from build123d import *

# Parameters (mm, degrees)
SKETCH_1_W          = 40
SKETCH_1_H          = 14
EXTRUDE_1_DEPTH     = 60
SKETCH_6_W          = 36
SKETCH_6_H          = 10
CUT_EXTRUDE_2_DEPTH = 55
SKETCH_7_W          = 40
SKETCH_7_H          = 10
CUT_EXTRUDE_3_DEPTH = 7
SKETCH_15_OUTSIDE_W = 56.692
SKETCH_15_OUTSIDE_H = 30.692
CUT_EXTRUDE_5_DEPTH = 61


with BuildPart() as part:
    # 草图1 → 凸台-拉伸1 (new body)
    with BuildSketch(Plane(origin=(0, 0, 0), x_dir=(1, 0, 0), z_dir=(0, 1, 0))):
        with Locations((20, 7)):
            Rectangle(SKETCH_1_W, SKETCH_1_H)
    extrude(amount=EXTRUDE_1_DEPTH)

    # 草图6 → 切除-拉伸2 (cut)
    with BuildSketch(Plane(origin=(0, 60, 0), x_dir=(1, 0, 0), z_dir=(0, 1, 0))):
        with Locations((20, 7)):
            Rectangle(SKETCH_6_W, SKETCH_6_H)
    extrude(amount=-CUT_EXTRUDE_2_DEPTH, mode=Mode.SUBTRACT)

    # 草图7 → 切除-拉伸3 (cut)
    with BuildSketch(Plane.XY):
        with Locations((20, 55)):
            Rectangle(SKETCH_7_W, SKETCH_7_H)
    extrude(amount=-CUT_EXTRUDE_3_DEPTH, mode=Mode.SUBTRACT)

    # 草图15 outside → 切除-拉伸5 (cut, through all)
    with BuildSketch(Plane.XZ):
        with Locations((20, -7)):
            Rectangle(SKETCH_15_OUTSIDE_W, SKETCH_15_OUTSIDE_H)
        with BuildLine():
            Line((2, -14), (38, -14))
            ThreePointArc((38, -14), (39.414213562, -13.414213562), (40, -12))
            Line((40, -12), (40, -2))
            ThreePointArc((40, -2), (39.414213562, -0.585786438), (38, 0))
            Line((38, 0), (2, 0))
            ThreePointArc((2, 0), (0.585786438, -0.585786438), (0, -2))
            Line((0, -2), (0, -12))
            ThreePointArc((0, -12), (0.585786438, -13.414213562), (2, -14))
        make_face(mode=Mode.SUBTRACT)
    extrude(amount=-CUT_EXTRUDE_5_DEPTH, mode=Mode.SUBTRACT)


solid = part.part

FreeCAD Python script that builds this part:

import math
import FreeCAD as App
import Part
import Sketcher

V = App.Vector

doc = App.newDocument("Part")
body = doc.addObject("PartDesign::Body", "Body")

# Sketch on XZ plane
sketch1 = doc.addObject("Sketcher::SketchObject", "Sketch")
body.addObject(sketch1)
sketch1.AttachmentSupport = (doc.XZ_Plane, [""])
sketch1.MapMode = "FlatFace"
sketch1.addGeometry(Part.LineSegment(V(0, -14, 0), V(0, 0, 0)), False)
sketch1.addGeometry(Part.LineSegment(V(0, 0, 0), V(40, 0, 0)), False)
sketch1.addGeometry(Part.LineSegment(V(40, 0, 0), V(40, -14, 0)), False)
sketch1.addGeometry(Part.LineSegment(V(40, -14, 0), V(0, -14, 0)), False)
sketch1.addConstraint(Sketcher.Constraint("Coincident", 0, 2, 1, 1))
sketch1.addConstraint(Sketcher.Constraint("Coincident", 1, 2, 2, 1))
sketch1.addConstraint(Sketcher.Constraint("Coincident", 2, 2, 3, 1))
sketch1.addConstraint(Sketcher.Constraint("Coincident", 3, 2, 0, 1))
sketch1.addConstraint(Sketcher.Constraint("Vertical", 0))
sketch1.addConstraint(Sketcher.Constraint("Horizontal", 1))
sketch1.addConstraint(Sketcher.Constraint("Vertical", 2))
sketch1.addConstraint(Sketcher.Constraint("Horizontal", 3))
sketch1.addConstraint(Sketcher.Constraint("Coincident", 0, 2, -1, 1))
sketch1.addConstraint(Sketcher.Constraint("DistanceX", 1, 1, 1, 2, 40.0))
sketch1.addConstraint(Sketcher.Constraint("DistanceY", 0, 1, 0, 2, 14.0))
pad1 = doc.addObject("PartDesign::Pad", "Pad")
body.addObject(pad1)
pad1.Profile = sketch1
pad1.Length = 60
pad1.Reversed = True

# Sketch on XZ plane
sketch2 = doc.addObject("Sketcher::SketchObject", "Sketch001")
body.addObject(sketch2)
sketch2.AttachmentSupport = (doc.XZ_Plane, [""])
sketch2.MapMode = "FlatFace"
sketch2.AttachmentOffset = App.Placement(V(0, 0, -60), App.Rotation())
sketch2.addGeometry(Part.LineSegment(V(2, -12, 0), V(2, -2, 0)), False)
sketch2.addGeometry(Part.LineSegment(V(2, -2, 0), V(38, -2, 0)), False)
sketch2.addGeometry(Part.LineSegment(V(38, -2, 0), V(38, -12, 0)), False)
sketch2.addGeometry(Part.LineSegment(V(38, -12, 0), V(2, -12, 0)), False)
sketch2.addConstraint(Sketcher.Constraint("Coincident", 0, 2, 1, 1))
sketch2.addConstraint(Sketcher.Constraint("Coincident", 1, 2, 2, 1))
sketch2.addConstraint(Sketcher.Constraint("Coincident", 2, 2, 3, 1))
sketch2.addConstraint(Sketcher.Constraint("Coincident", 3, 2, 0, 1))
sketch2.addConstraint(Sketcher.Constraint("Vertical", 0))
sketch2.addConstraint(Sketcher.Constraint("Horizontal", 1))
sketch2.addConstraint(Sketcher.Constraint("Vertical", 2))
sketch2.addConstraint(Sketcher.Constraint("Horizontal", 3))
sketch2.addConstraint(Sketcher.Constraint("DistanceX", 1, 1, 1, 2, 36.0))
sketch2.addConstraint(Sketcher.Constraint("DistanceY", 0, 1, 0, 2, 10.0))
sketch2.addConstraint(Sketcher.Constraint("DistanceX", -1, 1, 0, 2, 2.0))
sketch2.addConstraint(Sketcher.Constraint("DistanceY", 0, 2, -1, 1, 2.0))
pocket1 = doc.addObject("PartDesign::Pocket", "Pocket")
body.addObject(pocket1)
pocket1.Profile = sketch2
pocket1.Length = 55
pocket1.Reversed = True

# Sketch on XY plane
sketch3 = doc.addObject("Sketcher::SketchObject", "Sketch002")
body.addObject(sketch3)
sketch3.AttachmentSupport = (doc.XY_Plane, [""])
sketch3.MapMode = "FlatFace"
sketch3.addGeometry(Part.LineSegment(V(0, 60, 0), V(0, 50, 0)), False)
sketch3.addGeometry(Part.LineSegment(V(0, 50, 0), V(40, 50, 0)), False)
sketch3.addGeometry(Part.LineSegment(V(40, 50, 0), V(40, 60, 0)), False)
sketch3.addGeometry(Part.LineSegment(V(40, 60, 0), V(0, 60, 0)), False)
sketch3.addConstraint(Sketcher.Constraint("Coincident", 0, 2, 1, 1))
sketch3.addConstraint(Sketcher.Constraint("Coincident", 1, 2, 2, 1))
sketch3.addConstraint(Sketcher.Constraint("Coincident", 2, 2, 3, 1))
sketch3.addConstraint(Sketcher.Constraint("Coincident", 3, 2, 0, 1))
sketch3.addConstraint(Sketcher.Constraint("Vertical", 0))
sketch3.addConstraint(Sketcher.Constraint("Horizontal", 1))
sketch3.addConstraint(Sketcher.Constraint("Vertical", 2))
sketch3.addConstraint(Sketcher.Constraint("Horizontal", 3))
sketch3.addConstraint(Sketcher.Constraint("PointOnObject", 0, 2, -2))
sketch3.addConstraint(Sketcher.Constraint("DistanceX", 1, 1, 1, 2, 40.0))
sketch3.addConstraint(Sketcher.Constraint("DistanceY", 0, 2, 0, 1, 10.0))
sketch3.addConstraint(Sketcher.Constraint("DistanceY", -1, 1, 0, 2, 50.0))
pocket2 = doc.addObject("PartDesign::Pocket", "Pocket001")
body.addObject(pocket2)
pocket2.Profile = sketch3
pocket2.Length = 7

# Sketch on XZ plane
sketch4 = doc.addObject("Sketcher::SketchObject", "Sketch003")
body.addObject(sketch4)
sketch4.AttachmentSupport = (doc.XZ_Plane, [""])
sketch4.MapMode = "FlatFace"
sketch4.addGeometry(Part.LineSegment(V(-8.3, 8.3, 0), V(-8.3, -22.3, 0)), False)
sketch4.addGeometry(Part.LineSegment(V(-8.3, -22.3, 0), V(48.3, -22.3, 0)), False)
sketch4.addGeometry(Part.LineSegment(V(48.3, -22.3, 0), V(48.3, 8.3, 0)), False)
sketch4.addGeometry(Part.LineSegment(V(48.3, 8.3, 0), V(-8.3, 8.3, 0)), False)
sketch4.addGeometry(Part.LineSegment(V(38, -14, 0), V(2, -14, 0)), False)
sketch4.addGeometry(Part.ArcOfCircle(Part.Circle(V(2, -12, 0), V(0, 0, 1), 2), math.radians(-180), math.radians(-90)), False)
sketch4.addGeometry(Part.LineSegment(V(0, -12, 0), V(0, -2, 0)), False)
sketch4.addGeometry(Part.ArcOfCircle(Part.Circle(V(2, -2, 0), V(0, 0, 1), 2), math.radians(90), math.radians(180)), False)
sketch4.addGeometry(Part.LineSegment(V(2, 0, 0), V(38, 0, 0)), False)
sketch4.addGeometry(Part.ArcOfCircle(Part.Circle(V(38, -2, 0), V(0, 0, 1), 2), math.radians(0), math.radians(90)), False)
sketch4.addGeometry(Part.LineSegment(V(40, -2, 0), V(40, -12, 0)), False)
sketch4.addGeometry(Part.ArcOfCircle(Part.Circle(V(38, -12, 0), V(0, 0, 1), 2), math.radians(-90), math.radians(0)), False)
sketch4.addConstraint(Sketcher.Constraint("Coincident", 0, 2, 1, 1))
sketch4.addConstraint(Sketcher.Constraint("Coincident", 1, 2, 2, 1))
sketch4.addConstraint(Sketcher.Constraint("Coincident", 2, 2, 3, 1))
sketch4.addConstraint(Sketcher.Constraint("Coincident", 3, 2, 0, 1))
sketch4.addConstraint(Sketcher.Constraint("Tangent", 4, 2, 5, 2))
sketch4.addConstraint(Sketcher.Constraint("Tangent", 5, 1, 6, 1))
sketch4.addConstraint(Sketcher.Constraint("Tangent", 6, 2, 7, 2))
sketch4.addConstraint(Sketcher.Constraint("Tangent", 7, 1, 8, 1))
sketch4.addConstraint(Sketcher.Constraint("Tangent", 8, 2, 9, 2))
sketch4.addConstraint(Sketcher.Constraint("Tangent", 9, 1, 10, 1))
sketch4.addConstraint(Sketcher.Constraint("Tangent", 10, 2, 11, 2))
sketch4.addConstraint(Sketcher.Constraint("Tangent", 11, 1, 4, 1))
sketch4.addConstraint(Sketcher.Constraint("Vertical", 0))
sketch4.addConstraint(Sketcher.Constraint("Horizontal", 1))
sketch4.addConstraint(Sketcher.Constraint("Vertical", 2))
sketch4.addConstraint(Sketcher.Constraint("Horizontal", 3))
sketch4.addConstraint(Sketcher.Constraint("Horizontal", 4))
sketch4.addConstraint(Sketcher.Constraint("Vertical", 6))
sketch4.addConstraint(Sketcher.Constraint("Horizontal", 8))
sketch4.addConstraint(Sketcher.Constraint("Vertical", 10))
sketch4.addConstraint(Sketcher.Constraint("Equal", 5, 7))
sketch4.addConstraint(Sketcher.Constraint("Equal", 7, 9))
sketch4.addConstraint(Sketcher.Constraint("Equal", 9, 11))
sketch4.addConstraint(Sketcher.Constraint("PointOnObject", 5, 1, -2))
sketch4.addConstraint(Sketcher.Constraint("PointOnObject", 7, 1, -1))
sketch4.addConstraint(Sketcher.Constraint("Radius", 5, 2.0))
sketch4.addConstraint(Sketcher.Constraint("DistanceX", 4, 2, 4, 1, 36.0))
sketch4.addConstraint(Sketcher.Constraint("DistanceY", 6, 1, 6, 2, 10.0))
sketch4.addConstraint(Sketcher.Constraint("DistanceX", 1, 1, 1, 2, 56.692))
sketch4.addConstraint(Sketcher.Constraint("DistanceY", 0, 2, 0, 1, 30.692))
sketch4.addConstraint(Sketcher.Constraint("DistanceX", 0, 2, -1, 1, 8.346))
sketch4.addConstraint(Sketcher.Constraint("DistanceY", 0, 2, -1, 1, 22.346))
pocket3 = doc.addObject("PartDesign::Pocket", "Pocket002")
body.addObject(pocket3)
pocket3.Profile = sketch4
pocket3.Type = "ThroughAll"

doc.recompute()
